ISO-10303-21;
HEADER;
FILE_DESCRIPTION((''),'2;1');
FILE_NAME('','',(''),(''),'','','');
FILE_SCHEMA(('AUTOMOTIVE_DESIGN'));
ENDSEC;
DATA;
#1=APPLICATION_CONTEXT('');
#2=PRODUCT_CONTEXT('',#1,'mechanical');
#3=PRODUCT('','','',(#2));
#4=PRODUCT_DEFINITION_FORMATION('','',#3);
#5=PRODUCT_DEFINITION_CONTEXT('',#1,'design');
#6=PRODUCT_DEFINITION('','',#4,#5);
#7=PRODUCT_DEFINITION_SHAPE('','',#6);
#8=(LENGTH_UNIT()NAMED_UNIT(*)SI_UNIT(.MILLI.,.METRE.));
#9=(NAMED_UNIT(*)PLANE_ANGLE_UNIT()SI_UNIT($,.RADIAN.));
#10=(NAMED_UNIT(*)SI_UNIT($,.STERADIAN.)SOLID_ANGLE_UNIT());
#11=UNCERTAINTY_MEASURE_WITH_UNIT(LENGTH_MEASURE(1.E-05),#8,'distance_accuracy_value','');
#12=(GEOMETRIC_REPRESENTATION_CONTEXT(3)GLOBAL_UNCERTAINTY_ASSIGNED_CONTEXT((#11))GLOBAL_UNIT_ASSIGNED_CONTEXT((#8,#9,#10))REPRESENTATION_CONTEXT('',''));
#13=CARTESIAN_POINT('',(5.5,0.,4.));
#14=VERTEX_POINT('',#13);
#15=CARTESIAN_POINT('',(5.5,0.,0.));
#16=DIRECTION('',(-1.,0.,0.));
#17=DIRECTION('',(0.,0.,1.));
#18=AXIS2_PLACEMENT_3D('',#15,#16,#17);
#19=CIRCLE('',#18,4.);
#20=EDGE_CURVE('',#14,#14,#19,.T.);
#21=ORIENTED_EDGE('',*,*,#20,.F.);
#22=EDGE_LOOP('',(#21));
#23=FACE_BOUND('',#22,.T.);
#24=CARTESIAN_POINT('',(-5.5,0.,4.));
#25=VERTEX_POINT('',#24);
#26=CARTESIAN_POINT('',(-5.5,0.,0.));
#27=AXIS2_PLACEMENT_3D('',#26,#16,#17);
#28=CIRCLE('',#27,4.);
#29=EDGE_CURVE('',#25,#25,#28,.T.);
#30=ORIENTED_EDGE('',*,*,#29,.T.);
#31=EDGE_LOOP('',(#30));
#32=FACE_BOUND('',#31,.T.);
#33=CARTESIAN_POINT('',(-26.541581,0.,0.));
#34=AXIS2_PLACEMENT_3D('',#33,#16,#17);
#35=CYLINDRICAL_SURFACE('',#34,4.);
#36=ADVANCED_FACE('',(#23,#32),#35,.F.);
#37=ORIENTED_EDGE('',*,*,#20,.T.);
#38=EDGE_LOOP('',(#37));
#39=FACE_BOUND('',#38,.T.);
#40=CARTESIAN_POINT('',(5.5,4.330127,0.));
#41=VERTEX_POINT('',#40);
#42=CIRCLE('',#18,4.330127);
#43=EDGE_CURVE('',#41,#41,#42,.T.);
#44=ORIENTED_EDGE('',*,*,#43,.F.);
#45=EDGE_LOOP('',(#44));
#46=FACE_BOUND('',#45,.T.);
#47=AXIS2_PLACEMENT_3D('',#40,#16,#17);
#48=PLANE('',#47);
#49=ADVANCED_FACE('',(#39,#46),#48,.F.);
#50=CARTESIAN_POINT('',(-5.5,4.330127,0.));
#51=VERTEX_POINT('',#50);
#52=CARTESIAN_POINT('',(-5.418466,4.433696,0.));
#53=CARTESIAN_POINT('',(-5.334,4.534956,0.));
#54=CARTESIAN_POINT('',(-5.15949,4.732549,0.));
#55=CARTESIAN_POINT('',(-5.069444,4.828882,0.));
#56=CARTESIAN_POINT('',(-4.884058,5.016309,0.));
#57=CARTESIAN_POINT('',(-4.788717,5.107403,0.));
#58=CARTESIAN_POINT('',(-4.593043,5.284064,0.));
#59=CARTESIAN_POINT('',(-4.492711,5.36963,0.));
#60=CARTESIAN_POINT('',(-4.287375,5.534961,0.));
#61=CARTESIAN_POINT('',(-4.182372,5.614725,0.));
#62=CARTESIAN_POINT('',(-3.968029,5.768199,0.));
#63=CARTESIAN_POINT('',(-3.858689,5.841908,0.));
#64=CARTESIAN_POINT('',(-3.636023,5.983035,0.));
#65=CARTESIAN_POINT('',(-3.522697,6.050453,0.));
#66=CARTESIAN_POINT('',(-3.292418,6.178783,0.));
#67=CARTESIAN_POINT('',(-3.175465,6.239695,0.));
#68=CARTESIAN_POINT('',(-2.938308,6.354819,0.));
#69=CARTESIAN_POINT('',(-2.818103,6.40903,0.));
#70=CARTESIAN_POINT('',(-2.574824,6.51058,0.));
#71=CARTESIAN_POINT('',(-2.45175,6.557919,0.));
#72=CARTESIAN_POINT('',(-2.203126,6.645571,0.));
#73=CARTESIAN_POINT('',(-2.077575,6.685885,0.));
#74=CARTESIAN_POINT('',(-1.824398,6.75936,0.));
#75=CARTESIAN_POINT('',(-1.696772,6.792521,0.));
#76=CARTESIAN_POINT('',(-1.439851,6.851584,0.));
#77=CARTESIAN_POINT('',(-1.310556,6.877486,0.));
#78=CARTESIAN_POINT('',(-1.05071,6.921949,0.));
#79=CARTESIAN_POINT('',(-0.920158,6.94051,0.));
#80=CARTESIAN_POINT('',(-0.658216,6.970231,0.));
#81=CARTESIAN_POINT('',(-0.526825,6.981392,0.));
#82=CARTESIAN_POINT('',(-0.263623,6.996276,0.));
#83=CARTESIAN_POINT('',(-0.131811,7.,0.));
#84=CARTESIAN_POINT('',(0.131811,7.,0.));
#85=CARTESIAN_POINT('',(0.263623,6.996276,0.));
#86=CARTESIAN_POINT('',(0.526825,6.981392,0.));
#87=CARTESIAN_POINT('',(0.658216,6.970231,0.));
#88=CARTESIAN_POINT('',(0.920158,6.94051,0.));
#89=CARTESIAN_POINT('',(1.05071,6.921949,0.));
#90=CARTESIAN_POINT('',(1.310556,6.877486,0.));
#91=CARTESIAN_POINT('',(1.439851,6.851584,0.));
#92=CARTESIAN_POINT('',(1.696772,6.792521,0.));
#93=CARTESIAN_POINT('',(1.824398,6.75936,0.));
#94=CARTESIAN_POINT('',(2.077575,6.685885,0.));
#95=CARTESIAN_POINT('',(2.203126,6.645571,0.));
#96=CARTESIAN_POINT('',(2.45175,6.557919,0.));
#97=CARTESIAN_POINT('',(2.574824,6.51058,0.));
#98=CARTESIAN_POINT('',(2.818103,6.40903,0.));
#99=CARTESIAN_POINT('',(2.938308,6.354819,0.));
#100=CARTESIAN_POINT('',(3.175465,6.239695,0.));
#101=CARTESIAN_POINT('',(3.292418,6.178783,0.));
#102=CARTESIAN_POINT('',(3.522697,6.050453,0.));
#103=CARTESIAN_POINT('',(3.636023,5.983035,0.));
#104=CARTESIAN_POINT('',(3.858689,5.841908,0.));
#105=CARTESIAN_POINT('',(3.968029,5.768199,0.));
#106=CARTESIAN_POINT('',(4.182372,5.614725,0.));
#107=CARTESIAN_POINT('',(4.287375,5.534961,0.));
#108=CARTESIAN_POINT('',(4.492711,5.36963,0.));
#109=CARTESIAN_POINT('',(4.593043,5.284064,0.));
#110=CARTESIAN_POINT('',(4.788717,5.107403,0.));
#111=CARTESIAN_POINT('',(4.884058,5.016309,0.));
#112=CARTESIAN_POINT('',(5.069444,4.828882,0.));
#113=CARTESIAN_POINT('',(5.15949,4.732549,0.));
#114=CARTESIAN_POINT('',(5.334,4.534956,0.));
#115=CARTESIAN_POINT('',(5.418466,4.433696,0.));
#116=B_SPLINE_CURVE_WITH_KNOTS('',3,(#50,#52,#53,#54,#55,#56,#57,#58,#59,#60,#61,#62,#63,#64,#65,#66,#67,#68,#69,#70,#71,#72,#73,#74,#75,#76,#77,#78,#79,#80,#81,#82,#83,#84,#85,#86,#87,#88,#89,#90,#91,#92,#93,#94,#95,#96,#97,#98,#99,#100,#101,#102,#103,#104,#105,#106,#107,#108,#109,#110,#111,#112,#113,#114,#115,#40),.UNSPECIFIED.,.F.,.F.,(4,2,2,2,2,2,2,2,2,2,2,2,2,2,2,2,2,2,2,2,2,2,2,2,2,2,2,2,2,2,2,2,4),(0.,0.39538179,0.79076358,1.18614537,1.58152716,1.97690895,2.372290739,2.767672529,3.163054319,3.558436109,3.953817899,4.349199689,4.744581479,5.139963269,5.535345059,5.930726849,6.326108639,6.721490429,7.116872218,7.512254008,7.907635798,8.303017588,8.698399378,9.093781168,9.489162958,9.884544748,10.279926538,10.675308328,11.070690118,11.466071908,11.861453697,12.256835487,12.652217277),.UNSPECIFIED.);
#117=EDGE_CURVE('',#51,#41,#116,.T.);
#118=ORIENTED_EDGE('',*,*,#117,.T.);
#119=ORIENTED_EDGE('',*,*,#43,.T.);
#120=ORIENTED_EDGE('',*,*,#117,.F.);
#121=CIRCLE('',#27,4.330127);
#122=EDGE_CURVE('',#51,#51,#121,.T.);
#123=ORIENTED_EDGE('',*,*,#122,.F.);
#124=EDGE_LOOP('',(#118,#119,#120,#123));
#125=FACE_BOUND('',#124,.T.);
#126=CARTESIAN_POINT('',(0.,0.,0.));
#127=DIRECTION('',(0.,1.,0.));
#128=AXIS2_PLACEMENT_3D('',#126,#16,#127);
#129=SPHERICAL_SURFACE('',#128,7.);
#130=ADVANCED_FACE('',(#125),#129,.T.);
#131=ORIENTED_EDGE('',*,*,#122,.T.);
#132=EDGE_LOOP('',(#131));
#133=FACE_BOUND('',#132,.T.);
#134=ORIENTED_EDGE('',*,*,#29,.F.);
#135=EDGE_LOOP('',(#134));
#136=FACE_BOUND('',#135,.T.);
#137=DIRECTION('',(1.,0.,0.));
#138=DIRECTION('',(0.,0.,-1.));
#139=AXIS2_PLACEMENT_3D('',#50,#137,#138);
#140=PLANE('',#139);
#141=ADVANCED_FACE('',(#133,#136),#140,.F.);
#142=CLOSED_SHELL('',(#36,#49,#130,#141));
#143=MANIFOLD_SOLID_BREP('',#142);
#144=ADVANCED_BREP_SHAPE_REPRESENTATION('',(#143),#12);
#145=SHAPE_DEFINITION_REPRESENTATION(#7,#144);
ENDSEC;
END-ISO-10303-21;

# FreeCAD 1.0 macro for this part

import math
import FreeCAD as App
import Part
import Sketcher

V = App.Vector

doc = App.newDocument("Part")
body = doc.addObject("PartDesign::Body", "Body")

# Sketch on XY plane
sketch1 = doc.addObject("Sketcher::SketchObject", "Sketch")
body.addObject(sketch1)
sketch1.AttachmentSupport = (doc.XY_Plane, [""])
sketch1.MapMode = "FlatFace"
sketch1.addGeometry([
    Part.LineSegment(V(-5.5, 4, 0), V(5.5, 4, 0)),
    Part.LineSegment(V(5.5, 4, 0), V(5.5, 4.33, 0)),
    Part.ArcOfCircle(Part.Circle(V(0, 0, 0), V(0, 0, 1), 7), math.radians(38), math.radians(142)),
    Part.LineSegment(V(-5.5, 4.33, 0), V(-5.5, 4, 0)),
], False)
sketch1.addConstraint([
    Sketcher.Constraint("Coincident", 0, 2, 1, 1),
    Sketcher.Constraint("Coincident", 1, 2, 2, 1),
    Sketcher.Constraint("Coincident", 2, 2, 3, 1),
    Sketcher.Constraint("Coincident", 3, 2, 0, 1),
    Sketcher.Constraint("Horizontal", 0),
    Sketcher.Constraint("Vertical", 1),
    Sketcher.Constraint("Vertical", 3),
    Sketcher.Constraint("Coincident", 2, 3, -1, 1),
    Sketcher.Constraint("Horizontal", 1, 2, 2, 2),
    Sketcher.Constraint("Radius", 2, 7.0),
    Sketcher.Constraint("DistanceX", 0, 1, 0, 2, 11.0),
    Sketcher.Constraint("DistanceY", -1, 1, 0, 2, 4.0),
])
revolution = doc.addObject("PartDesign::Revolution", "Revolution")
body.addObject(revolution)
revolution.Profile = sketch1
revolution.ReferenceAxis = (sketch1, ["H_Axis"])
revolution.Angle = 360

doc.recompute()
